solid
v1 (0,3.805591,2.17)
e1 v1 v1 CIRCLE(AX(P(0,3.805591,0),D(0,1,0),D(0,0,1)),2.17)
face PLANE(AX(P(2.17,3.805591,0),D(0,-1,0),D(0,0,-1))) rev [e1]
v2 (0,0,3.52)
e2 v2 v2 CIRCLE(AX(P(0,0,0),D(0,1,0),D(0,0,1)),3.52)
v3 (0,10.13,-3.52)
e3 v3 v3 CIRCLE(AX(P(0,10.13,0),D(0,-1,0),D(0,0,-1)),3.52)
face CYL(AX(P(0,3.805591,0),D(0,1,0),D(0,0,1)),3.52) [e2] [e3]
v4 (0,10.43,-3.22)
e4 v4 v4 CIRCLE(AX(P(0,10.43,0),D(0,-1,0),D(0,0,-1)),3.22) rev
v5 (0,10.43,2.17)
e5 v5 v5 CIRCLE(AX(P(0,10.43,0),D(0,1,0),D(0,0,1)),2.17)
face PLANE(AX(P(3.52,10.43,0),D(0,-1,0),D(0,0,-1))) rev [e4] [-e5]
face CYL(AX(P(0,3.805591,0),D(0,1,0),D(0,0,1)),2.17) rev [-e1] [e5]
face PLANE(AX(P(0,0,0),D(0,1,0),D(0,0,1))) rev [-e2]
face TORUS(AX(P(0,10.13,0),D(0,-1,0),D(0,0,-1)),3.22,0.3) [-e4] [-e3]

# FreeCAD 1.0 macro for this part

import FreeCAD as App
import Part
import Sketcher

V = App.Vector
Q = App.Units.Quantity


def edges_at(feature, points):
    """Names of the edges that pass closest to the given points."""
    edges = feature.Shape.Edges
    near = lambda p: min(range(len(edges)), key=lambda i: edges[i].distToShape(Part.Vertex(*p))[0])
    return sorted({f"Edge{near(p) + 1}" for p in points})

doc = App.newDocument("Part")
body = doc.addObject("PartDesign::Body", "Body")

sketch1 = body.newObject("Sketcher::SketchObject", "Sketch")
sketch1.AttachmentSupport = (doc.getObject("XY_Plane"), [""])
sketch1.MapMode = "FlatFace"
sketch1.addGeometry([
    Part.LineSegment(V(0, 0, 0), V(3.5, 0, 0)),
    Part.LineSegment(V(3.5, 0, 0), V(3.5, 10.4, 0)),
    Part.LineSegment(V(3.5, 10.4, 0), V(2.2, 10.4, 0)),
    Part.LineSegment(V(2.2, 10.4, 0), V(2.2, 3.8, 0)),
    Part.LineSegment(V(2.2, 3.8, 0), V(0, 3.8, 0)),
    Part.LineSegment(V(0, 3.8, 0), V(0, 0, 0)),
], False)
sketch1.addConstraint([
    Sketcher.Constraint("Coincident", 0, 2, 1, 1),
    Sketcher.Constraint("Coincident", 1, 2, 2, 1),
    Sketcher.Constraint("Coincident", 2, 2, 3, 1),
    Sketcher.Constraint("Coincident", 3, 2, 4, 1),
    Sketcher.Constraint("Coincident", 4, 2, 5, 1),
    Sketcher.Constraint("Coincident", 5, 2, 0, 1),
    Sketcher.Constraint("Horizontal", 0),
    Sketcher.Constraint("Vertical", 1),
    Sketcher.Constraint("Horizontal", 2),
    Sketcher.Constraint("Vertical", 3),
    Sketcher.Constraint("Horizontal", 4),
    Sketcher.Constraint("Vertical", 5),
    Sketcher.Constraint("Coincident", 5, 2, -1, 1),
    Sketcher.Constraint("DistanceX", 0, 1, 0, 2, Q("3.52 mm")),
    Sketcher.Constraint("DistanceX", 2, 2, 2, 1, Q("1.35 mm")),
    Sketcher.Constraint("DistanceY", 1, 1, 1, 2, Q("10.43 mm")),
    Sketcher.Constraint("DistanceY", 3, 2, 3, 1, Q("6.624409 mm")),
])
revolution = body.newObject("PartDesign::Revolution", "Revolution")
revolution.Profile = sketch1
revolution.ReferenceAxis = (sketch1, ["V_Axis"])
revolution.Angle = 360
doc.recompute()

fillet = body.newObject("PartDesign::Fillet", "Fillet")
fillet.Base = (revolution, edges_at(revolution, [(0, 10.43, -3.52)]))
fillet.Radius = 0.3

doc.recompute()
